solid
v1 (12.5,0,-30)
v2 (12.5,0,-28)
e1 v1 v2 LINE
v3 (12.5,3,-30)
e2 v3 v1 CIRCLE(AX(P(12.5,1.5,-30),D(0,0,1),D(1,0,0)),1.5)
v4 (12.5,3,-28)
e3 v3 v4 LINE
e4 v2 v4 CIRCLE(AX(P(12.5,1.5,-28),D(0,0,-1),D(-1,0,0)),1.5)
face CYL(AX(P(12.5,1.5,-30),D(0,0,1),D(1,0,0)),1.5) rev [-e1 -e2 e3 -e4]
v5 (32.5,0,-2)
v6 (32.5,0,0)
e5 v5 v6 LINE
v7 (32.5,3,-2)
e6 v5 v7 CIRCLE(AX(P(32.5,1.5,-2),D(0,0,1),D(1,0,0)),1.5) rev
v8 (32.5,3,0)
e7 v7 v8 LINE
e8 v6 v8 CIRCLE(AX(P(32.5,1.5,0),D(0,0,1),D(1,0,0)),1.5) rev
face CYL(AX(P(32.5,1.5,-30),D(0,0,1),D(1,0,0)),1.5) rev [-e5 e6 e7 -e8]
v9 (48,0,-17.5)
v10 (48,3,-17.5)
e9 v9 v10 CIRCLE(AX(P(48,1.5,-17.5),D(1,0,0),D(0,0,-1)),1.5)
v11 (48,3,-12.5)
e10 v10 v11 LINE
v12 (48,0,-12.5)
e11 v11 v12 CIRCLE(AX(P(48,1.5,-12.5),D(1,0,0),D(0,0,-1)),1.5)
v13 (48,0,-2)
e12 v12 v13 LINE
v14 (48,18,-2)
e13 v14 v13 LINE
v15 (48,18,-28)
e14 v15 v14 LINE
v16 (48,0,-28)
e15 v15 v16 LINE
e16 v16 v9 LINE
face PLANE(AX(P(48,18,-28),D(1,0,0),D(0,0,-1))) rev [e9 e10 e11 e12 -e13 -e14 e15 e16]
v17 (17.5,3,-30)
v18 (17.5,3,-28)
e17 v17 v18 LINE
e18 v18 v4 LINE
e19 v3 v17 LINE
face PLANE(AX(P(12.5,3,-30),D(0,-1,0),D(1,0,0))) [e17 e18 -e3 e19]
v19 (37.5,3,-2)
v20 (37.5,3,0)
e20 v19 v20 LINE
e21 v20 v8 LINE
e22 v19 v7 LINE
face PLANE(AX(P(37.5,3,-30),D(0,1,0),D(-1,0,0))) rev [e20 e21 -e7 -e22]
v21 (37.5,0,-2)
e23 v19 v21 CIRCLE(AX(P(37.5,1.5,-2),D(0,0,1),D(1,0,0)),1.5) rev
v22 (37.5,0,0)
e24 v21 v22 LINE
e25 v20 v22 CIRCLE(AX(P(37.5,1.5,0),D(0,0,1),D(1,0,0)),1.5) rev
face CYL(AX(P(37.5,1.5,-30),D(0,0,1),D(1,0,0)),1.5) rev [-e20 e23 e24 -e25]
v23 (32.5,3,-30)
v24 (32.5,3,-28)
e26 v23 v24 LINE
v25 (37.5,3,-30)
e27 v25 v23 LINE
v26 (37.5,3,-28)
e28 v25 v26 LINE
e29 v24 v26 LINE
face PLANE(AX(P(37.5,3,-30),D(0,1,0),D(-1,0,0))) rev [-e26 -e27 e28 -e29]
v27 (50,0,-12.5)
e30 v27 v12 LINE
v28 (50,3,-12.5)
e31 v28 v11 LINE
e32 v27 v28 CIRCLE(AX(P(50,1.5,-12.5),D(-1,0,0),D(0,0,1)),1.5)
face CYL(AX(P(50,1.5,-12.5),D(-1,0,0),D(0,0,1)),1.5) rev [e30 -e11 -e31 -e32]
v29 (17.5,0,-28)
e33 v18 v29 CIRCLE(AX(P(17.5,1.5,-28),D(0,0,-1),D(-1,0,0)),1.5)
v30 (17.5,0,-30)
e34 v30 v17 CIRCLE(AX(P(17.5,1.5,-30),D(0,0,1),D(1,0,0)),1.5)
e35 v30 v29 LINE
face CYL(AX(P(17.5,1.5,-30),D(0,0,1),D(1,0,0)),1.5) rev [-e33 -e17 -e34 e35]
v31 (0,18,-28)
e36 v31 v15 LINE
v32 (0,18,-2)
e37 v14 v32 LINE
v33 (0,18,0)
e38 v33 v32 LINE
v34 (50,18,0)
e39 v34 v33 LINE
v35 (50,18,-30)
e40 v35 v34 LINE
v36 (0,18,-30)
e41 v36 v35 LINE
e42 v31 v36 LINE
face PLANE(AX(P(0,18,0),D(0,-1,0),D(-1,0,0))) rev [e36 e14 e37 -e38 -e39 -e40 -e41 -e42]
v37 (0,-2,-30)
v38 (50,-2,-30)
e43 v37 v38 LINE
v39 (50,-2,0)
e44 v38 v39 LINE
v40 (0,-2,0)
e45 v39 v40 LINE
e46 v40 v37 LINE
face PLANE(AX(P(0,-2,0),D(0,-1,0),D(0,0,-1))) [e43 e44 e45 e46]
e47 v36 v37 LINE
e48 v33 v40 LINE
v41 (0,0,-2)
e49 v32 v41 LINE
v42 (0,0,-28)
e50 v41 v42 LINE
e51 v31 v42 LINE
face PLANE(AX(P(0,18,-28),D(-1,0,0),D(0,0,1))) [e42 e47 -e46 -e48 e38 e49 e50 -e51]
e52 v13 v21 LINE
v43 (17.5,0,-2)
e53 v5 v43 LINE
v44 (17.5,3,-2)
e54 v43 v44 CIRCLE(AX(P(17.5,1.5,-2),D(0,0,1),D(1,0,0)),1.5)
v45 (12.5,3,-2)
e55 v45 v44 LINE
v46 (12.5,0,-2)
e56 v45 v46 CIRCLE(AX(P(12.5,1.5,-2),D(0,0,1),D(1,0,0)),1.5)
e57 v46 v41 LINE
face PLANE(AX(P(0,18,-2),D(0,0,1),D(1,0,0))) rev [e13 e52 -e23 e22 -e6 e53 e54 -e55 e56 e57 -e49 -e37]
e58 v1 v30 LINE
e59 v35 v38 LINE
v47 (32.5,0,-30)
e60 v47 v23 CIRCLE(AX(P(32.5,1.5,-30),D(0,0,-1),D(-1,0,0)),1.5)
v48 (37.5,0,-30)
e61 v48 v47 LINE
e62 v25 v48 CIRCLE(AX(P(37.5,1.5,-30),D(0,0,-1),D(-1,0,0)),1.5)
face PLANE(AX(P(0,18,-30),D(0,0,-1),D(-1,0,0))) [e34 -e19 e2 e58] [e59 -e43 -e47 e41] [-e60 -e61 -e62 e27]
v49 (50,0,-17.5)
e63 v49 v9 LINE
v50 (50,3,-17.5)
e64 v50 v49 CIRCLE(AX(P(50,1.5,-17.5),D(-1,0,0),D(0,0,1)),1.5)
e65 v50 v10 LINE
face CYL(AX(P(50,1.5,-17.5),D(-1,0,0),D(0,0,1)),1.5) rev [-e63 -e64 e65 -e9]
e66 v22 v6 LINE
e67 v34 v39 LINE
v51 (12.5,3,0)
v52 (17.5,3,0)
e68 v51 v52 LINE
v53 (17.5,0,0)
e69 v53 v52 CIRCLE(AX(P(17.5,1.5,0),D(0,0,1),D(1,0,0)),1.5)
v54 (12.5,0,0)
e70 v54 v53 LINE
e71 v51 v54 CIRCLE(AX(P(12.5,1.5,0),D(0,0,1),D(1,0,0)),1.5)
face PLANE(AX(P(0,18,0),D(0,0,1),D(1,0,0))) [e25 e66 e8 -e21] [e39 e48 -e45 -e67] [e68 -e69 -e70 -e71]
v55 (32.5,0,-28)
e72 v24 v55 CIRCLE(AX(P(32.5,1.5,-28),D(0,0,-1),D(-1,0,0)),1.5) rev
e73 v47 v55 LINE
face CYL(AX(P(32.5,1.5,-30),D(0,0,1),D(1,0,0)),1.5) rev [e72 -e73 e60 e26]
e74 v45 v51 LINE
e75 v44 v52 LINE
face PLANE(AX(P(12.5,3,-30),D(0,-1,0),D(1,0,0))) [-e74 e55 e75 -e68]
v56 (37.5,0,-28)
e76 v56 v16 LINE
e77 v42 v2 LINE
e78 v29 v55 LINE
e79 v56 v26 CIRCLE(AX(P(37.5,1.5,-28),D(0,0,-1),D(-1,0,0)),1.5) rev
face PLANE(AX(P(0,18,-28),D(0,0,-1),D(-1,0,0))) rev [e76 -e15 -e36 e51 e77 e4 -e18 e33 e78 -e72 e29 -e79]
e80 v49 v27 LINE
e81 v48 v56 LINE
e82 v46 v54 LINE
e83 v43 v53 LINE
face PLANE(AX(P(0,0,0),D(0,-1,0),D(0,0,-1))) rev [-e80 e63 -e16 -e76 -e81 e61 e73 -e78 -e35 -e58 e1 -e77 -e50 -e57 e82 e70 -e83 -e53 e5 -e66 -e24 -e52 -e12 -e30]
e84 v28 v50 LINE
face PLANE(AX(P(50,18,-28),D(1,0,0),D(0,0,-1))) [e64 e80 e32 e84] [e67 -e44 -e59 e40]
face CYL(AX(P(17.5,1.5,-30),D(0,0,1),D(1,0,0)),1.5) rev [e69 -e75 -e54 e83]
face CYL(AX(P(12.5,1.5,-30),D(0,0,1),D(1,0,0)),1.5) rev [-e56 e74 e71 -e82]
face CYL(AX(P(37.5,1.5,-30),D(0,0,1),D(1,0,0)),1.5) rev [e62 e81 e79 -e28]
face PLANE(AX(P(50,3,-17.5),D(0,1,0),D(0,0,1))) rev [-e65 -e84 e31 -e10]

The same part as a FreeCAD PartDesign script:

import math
import FreeCAD as App
import Part
import Sketcher
from FreeCAD import Vector
Q = App.Units.Quantity


def add_polygon(sketch, points):
    """Adds a closed chain of lines whose ends are joined by coincident constraints."""
    first, n = sketch.GeometryCount, len(points)
    for a, b in zip(points, points[1:] + points[:1]):
        sketch.addGeometry(Part.LineSegment(App.Vector(*a, 0), App.Vector(*b, 0)), False)
    for i in range(n):
        sketch.addConstraint(Sketcher.Constraint("Coincident", first + i, 2, first + (i + 1) % n, 1))

doc = App.newDocument("Part")
body = doc.addObject("PartDesign::Body", "Body")

# Sketch on XZ plane
sketch1 = body.newObject("Sketcher::SketchObject", "Sketch")
sketch1.AttachmentSupport = (doc.getObject("XZ_Plane"), [""])
sketch1.MapMode = "FlatFace"
add_polygon(sketch1, [(0, -28), (48, -28), (48, -2), (0, -2), (0, 0), (50, 0), (50, -30), (0, -30)])  # lines 0-7
sketch1.addConstraint([
    Sketcher.Constraint("Horizontal", 0),
    Sketcher.Constraint("Vertical", 1),
    Sketcher.Constraint("Horizontal", 2),
    Sketcher.Constraint("Vertical", 3),
    Sketcher.Constraint("Horizontal", 4),
    Sketcher.Constraint("Vertical", 5),
    Sketcher.Constraint("Horizontal", 6),
    Sketcher.Constraint("Vertical", 7),
    Sketcher.Constraint("Coincident", 3, 2, -1, 1),
    Sketcher.Constraint("PointOnObject", 6, 2, -2),
    Sketcher.Constraint("Equal", 3, 7),
    Sketcher.Constraint("DistanceX", 0, 1, 0, 2, Q("48 mm")),
    Sketcher.Constraint("DistanceX", 4, 1, 4, 2, Q("50 mm")),
    Sketcher.Constraint("DistanceY", 1, 1, 1, 2, Q("26 mm")),
    Sketcher.Constraint("DistanceY", 3, 1, 3, 2, Q("2 mm")),
])
pad1 = body.newObject("PartDesign::Pad", "Pad")
pad1.Profile = sketch1
pad1.Length = 18
pad1.Reversed = True

# Sketch on XZ plane
sketch2 = body.newObject("Sketcher::SketchObject", "Sketch001")
sketch2.AttachmentSupport = (doc.getObject("XZ_Plane"), [""])
sketch2.MapMode = "FlatFace"
add_polygon(sketch2, [(0, 0), (0, -30), (50, -30), (50, 0)])  # lines 0-3
sketch2.addConstraint([
    Sketcher.Constraint("Vertical", 0),
    Sketcher.Constraint("Horizontal", 1),
    Sketcher.Constraint("Vertical", 2),
    Sketcher.Constraint("Horizontal", 3),
    Sketcher.Constraint("Coincident", 3, 2, -1, 1),
    Sketcher.Constraint("DistanceX", 1, 1, 1, 2, Q("50 mm")),
    Sketcher.Constraint("DistanceY", 0, 2, 0, 1, Q("30 mm")),
])
pad2 = body.newObject("PartDesign::Pad", "Pad001")
pad2.Profile = sketch2
pad2.Length = 2

# Sketch on XY plane
sketch3 = body.newObject("Sketcher::SketchObject", "Sketch002")
sketch3.AttachmentSupport = (doc.getObject("XY_Plane"), [""])
sketch3.MapMode = "FlatFace"
sketch3.addGeometry([
    Part.LineSegment(Vector(17.5, 3, 0), Vector(12.5, 3, 0)),  # 0
    Part.ArcOfCircle(Part.Circle(Vector(12.5, 1.5, 0), Vector(0, 0, 1), 1.5), math.radians(90), math.radians(270)),  # 1
    Part.LineSegment(Vector(12.5, 0, 0), Vector(17.5, 0, 0)),  # 2
    Part.ArcOfCircle(Part.Circle(Vector(17.5, 1.5, 0), Vector(0, 0, 1), 1.5), math.radians(-90), math.radians(90)),  # 3
    Part.LineSegment(Vector(37.5, 3, 0), Vector(32.5, 3, 0)),  # 4
    Part.ArcOfCircle(Part.Circle(Vector(32.5, 1.5, 0), Vector(0, 0, 1), 1.5), math.radians(90), math.radians(270)),  # 5
    Part.LineSegment(Vector(32.5, 0, 0), Vector(37.5, 0, 0)),  # 6
    Part.ArcOfCircle(Part.Circle(Vector(37.5, 1.5, 0), Vector(0, 0, 1), 1.5), math.radians(-90), math.radians(90)),  # 7
], False)
sketch3.addConstraint([
    Sketcher.Constraint("Tangent", 0, 2, 1, 1),
    Sketcher.Constraint("Tangent", 1, 2, 2, 1),
    Sketcher.Constraint("Tangent", 2, 2, 3, 1),
    Sketcher.Constraint("Tangent", 3, 2, 0, 1),
    Sketcher.Constraint("Tangent", 4, 2, 5, 1),
    Sketcher.Constraint("Tangent", 5, 2, 6, 1),
    Sketcher.Constraint("Tangent", 6, 2, 7, 1),
    Sketcher.Constraint("Tangent", 7, 2, 4, 1),
    Sketcher.Constraint("Horizontal", 0),
    Sketcher.Constraint("Horizontal", 2),
    Sketcher.Constraint("Horizontal", 4),
    Sketcher.Constraint("Horizontal", 6),
    Sketcher.Constraint("Equal", 3, 5),
    Sketcher.Constraint("PointOnObject", 1, 2, -1),
    Sketcher.Constraint("PointOnObject", 5, 2, -1),
    Sketcher.Constraint("Equal", 2, 4),
    Sketcher.Constraint("Radius", 1, Q("1.5 mm")),
    Sketcher.Constraint("DistanceX", 0, 2, 0, 1, Q("5 mm")),
    Sketcher.Constraint("DistanceX", 3, 3, 5, 3, Q("15 mm")),
    Sketcher.Constraint("DistanceX", -1, 1, 1, 3, Q("12.5 mm")),
])
pocket1 = body.newObject("PartDesign::Pocket", "Pocket")
pocket1.Profile = sketch3
pocket1.Type = "ThroughAll"
pocket1.Midplane = True

# Sketch on YZ plane
sketch4 = body.newObject("Sketcher::SketchObject", "Sketch003")
sketch4.AttachmentSupport = (doc.getObject("YZ_Plane"), [""])
sketch4.MapMode = "FlatFace"
sketch4.AttachmentOffset = App.Placement(Vector(0, 0, 48), App.Rotation())
sketch4.addGeometry([
    Part.LineSegment(Vector(3, -12.5, 0), Vector(3, -17.5, 0)),
    Part.ArcOfCircle(Part.Circle(Vector(1.5, -17.5, 0), Vector(0, 0, 1), 1.5), math.radians(180), math.radians(360)),
    Part.LineSegment(Vector(0, -17.5, 0), Vector(0, -12.5, 0)),
    Part.ArcOfCircle(Part.Circle(Vector(1.5, -12.5, 0), Vector(0, 0, 1), 1.5), math.radians(0), math.radians(180)),
], False)
sketch4.addConstraint([
    Sketcher.Constraint("Tangent", 0, 2, 1, 2),
    Sketcher.Constraint("Tangent", 1, 1, 2, 1),
    Sketcher.Constraint("Tangent", 2, 2, 3, 2),
    Sketcher.Constraint("Tangent", 3, 1, 0, 1),
    Sketcher.Constraint("Vertical", 0),
    Sketcher.Constraint("Vertical", 2),
    Sketcher.Constraint("PointOnObject", 1, 1, -2),
    Sketcher.Constraint("Radius", 1, Q("1.5 mm")),
    Sketcher.Constraint("DistanceY", 0, 2, 0, 1, Q("5 mm")),
    Sketcher.Constraint("DistanceY", 1, 3, -1, 1, Q("17.5 mm")),
])
pocket2 = body.newObject("PartDesign::Pocket", "Pocket001")
pocket2.Profile = sketch4
pocket2.Type = "ThroughAll"
pocket2.Midplane = True

doc.recompute()
